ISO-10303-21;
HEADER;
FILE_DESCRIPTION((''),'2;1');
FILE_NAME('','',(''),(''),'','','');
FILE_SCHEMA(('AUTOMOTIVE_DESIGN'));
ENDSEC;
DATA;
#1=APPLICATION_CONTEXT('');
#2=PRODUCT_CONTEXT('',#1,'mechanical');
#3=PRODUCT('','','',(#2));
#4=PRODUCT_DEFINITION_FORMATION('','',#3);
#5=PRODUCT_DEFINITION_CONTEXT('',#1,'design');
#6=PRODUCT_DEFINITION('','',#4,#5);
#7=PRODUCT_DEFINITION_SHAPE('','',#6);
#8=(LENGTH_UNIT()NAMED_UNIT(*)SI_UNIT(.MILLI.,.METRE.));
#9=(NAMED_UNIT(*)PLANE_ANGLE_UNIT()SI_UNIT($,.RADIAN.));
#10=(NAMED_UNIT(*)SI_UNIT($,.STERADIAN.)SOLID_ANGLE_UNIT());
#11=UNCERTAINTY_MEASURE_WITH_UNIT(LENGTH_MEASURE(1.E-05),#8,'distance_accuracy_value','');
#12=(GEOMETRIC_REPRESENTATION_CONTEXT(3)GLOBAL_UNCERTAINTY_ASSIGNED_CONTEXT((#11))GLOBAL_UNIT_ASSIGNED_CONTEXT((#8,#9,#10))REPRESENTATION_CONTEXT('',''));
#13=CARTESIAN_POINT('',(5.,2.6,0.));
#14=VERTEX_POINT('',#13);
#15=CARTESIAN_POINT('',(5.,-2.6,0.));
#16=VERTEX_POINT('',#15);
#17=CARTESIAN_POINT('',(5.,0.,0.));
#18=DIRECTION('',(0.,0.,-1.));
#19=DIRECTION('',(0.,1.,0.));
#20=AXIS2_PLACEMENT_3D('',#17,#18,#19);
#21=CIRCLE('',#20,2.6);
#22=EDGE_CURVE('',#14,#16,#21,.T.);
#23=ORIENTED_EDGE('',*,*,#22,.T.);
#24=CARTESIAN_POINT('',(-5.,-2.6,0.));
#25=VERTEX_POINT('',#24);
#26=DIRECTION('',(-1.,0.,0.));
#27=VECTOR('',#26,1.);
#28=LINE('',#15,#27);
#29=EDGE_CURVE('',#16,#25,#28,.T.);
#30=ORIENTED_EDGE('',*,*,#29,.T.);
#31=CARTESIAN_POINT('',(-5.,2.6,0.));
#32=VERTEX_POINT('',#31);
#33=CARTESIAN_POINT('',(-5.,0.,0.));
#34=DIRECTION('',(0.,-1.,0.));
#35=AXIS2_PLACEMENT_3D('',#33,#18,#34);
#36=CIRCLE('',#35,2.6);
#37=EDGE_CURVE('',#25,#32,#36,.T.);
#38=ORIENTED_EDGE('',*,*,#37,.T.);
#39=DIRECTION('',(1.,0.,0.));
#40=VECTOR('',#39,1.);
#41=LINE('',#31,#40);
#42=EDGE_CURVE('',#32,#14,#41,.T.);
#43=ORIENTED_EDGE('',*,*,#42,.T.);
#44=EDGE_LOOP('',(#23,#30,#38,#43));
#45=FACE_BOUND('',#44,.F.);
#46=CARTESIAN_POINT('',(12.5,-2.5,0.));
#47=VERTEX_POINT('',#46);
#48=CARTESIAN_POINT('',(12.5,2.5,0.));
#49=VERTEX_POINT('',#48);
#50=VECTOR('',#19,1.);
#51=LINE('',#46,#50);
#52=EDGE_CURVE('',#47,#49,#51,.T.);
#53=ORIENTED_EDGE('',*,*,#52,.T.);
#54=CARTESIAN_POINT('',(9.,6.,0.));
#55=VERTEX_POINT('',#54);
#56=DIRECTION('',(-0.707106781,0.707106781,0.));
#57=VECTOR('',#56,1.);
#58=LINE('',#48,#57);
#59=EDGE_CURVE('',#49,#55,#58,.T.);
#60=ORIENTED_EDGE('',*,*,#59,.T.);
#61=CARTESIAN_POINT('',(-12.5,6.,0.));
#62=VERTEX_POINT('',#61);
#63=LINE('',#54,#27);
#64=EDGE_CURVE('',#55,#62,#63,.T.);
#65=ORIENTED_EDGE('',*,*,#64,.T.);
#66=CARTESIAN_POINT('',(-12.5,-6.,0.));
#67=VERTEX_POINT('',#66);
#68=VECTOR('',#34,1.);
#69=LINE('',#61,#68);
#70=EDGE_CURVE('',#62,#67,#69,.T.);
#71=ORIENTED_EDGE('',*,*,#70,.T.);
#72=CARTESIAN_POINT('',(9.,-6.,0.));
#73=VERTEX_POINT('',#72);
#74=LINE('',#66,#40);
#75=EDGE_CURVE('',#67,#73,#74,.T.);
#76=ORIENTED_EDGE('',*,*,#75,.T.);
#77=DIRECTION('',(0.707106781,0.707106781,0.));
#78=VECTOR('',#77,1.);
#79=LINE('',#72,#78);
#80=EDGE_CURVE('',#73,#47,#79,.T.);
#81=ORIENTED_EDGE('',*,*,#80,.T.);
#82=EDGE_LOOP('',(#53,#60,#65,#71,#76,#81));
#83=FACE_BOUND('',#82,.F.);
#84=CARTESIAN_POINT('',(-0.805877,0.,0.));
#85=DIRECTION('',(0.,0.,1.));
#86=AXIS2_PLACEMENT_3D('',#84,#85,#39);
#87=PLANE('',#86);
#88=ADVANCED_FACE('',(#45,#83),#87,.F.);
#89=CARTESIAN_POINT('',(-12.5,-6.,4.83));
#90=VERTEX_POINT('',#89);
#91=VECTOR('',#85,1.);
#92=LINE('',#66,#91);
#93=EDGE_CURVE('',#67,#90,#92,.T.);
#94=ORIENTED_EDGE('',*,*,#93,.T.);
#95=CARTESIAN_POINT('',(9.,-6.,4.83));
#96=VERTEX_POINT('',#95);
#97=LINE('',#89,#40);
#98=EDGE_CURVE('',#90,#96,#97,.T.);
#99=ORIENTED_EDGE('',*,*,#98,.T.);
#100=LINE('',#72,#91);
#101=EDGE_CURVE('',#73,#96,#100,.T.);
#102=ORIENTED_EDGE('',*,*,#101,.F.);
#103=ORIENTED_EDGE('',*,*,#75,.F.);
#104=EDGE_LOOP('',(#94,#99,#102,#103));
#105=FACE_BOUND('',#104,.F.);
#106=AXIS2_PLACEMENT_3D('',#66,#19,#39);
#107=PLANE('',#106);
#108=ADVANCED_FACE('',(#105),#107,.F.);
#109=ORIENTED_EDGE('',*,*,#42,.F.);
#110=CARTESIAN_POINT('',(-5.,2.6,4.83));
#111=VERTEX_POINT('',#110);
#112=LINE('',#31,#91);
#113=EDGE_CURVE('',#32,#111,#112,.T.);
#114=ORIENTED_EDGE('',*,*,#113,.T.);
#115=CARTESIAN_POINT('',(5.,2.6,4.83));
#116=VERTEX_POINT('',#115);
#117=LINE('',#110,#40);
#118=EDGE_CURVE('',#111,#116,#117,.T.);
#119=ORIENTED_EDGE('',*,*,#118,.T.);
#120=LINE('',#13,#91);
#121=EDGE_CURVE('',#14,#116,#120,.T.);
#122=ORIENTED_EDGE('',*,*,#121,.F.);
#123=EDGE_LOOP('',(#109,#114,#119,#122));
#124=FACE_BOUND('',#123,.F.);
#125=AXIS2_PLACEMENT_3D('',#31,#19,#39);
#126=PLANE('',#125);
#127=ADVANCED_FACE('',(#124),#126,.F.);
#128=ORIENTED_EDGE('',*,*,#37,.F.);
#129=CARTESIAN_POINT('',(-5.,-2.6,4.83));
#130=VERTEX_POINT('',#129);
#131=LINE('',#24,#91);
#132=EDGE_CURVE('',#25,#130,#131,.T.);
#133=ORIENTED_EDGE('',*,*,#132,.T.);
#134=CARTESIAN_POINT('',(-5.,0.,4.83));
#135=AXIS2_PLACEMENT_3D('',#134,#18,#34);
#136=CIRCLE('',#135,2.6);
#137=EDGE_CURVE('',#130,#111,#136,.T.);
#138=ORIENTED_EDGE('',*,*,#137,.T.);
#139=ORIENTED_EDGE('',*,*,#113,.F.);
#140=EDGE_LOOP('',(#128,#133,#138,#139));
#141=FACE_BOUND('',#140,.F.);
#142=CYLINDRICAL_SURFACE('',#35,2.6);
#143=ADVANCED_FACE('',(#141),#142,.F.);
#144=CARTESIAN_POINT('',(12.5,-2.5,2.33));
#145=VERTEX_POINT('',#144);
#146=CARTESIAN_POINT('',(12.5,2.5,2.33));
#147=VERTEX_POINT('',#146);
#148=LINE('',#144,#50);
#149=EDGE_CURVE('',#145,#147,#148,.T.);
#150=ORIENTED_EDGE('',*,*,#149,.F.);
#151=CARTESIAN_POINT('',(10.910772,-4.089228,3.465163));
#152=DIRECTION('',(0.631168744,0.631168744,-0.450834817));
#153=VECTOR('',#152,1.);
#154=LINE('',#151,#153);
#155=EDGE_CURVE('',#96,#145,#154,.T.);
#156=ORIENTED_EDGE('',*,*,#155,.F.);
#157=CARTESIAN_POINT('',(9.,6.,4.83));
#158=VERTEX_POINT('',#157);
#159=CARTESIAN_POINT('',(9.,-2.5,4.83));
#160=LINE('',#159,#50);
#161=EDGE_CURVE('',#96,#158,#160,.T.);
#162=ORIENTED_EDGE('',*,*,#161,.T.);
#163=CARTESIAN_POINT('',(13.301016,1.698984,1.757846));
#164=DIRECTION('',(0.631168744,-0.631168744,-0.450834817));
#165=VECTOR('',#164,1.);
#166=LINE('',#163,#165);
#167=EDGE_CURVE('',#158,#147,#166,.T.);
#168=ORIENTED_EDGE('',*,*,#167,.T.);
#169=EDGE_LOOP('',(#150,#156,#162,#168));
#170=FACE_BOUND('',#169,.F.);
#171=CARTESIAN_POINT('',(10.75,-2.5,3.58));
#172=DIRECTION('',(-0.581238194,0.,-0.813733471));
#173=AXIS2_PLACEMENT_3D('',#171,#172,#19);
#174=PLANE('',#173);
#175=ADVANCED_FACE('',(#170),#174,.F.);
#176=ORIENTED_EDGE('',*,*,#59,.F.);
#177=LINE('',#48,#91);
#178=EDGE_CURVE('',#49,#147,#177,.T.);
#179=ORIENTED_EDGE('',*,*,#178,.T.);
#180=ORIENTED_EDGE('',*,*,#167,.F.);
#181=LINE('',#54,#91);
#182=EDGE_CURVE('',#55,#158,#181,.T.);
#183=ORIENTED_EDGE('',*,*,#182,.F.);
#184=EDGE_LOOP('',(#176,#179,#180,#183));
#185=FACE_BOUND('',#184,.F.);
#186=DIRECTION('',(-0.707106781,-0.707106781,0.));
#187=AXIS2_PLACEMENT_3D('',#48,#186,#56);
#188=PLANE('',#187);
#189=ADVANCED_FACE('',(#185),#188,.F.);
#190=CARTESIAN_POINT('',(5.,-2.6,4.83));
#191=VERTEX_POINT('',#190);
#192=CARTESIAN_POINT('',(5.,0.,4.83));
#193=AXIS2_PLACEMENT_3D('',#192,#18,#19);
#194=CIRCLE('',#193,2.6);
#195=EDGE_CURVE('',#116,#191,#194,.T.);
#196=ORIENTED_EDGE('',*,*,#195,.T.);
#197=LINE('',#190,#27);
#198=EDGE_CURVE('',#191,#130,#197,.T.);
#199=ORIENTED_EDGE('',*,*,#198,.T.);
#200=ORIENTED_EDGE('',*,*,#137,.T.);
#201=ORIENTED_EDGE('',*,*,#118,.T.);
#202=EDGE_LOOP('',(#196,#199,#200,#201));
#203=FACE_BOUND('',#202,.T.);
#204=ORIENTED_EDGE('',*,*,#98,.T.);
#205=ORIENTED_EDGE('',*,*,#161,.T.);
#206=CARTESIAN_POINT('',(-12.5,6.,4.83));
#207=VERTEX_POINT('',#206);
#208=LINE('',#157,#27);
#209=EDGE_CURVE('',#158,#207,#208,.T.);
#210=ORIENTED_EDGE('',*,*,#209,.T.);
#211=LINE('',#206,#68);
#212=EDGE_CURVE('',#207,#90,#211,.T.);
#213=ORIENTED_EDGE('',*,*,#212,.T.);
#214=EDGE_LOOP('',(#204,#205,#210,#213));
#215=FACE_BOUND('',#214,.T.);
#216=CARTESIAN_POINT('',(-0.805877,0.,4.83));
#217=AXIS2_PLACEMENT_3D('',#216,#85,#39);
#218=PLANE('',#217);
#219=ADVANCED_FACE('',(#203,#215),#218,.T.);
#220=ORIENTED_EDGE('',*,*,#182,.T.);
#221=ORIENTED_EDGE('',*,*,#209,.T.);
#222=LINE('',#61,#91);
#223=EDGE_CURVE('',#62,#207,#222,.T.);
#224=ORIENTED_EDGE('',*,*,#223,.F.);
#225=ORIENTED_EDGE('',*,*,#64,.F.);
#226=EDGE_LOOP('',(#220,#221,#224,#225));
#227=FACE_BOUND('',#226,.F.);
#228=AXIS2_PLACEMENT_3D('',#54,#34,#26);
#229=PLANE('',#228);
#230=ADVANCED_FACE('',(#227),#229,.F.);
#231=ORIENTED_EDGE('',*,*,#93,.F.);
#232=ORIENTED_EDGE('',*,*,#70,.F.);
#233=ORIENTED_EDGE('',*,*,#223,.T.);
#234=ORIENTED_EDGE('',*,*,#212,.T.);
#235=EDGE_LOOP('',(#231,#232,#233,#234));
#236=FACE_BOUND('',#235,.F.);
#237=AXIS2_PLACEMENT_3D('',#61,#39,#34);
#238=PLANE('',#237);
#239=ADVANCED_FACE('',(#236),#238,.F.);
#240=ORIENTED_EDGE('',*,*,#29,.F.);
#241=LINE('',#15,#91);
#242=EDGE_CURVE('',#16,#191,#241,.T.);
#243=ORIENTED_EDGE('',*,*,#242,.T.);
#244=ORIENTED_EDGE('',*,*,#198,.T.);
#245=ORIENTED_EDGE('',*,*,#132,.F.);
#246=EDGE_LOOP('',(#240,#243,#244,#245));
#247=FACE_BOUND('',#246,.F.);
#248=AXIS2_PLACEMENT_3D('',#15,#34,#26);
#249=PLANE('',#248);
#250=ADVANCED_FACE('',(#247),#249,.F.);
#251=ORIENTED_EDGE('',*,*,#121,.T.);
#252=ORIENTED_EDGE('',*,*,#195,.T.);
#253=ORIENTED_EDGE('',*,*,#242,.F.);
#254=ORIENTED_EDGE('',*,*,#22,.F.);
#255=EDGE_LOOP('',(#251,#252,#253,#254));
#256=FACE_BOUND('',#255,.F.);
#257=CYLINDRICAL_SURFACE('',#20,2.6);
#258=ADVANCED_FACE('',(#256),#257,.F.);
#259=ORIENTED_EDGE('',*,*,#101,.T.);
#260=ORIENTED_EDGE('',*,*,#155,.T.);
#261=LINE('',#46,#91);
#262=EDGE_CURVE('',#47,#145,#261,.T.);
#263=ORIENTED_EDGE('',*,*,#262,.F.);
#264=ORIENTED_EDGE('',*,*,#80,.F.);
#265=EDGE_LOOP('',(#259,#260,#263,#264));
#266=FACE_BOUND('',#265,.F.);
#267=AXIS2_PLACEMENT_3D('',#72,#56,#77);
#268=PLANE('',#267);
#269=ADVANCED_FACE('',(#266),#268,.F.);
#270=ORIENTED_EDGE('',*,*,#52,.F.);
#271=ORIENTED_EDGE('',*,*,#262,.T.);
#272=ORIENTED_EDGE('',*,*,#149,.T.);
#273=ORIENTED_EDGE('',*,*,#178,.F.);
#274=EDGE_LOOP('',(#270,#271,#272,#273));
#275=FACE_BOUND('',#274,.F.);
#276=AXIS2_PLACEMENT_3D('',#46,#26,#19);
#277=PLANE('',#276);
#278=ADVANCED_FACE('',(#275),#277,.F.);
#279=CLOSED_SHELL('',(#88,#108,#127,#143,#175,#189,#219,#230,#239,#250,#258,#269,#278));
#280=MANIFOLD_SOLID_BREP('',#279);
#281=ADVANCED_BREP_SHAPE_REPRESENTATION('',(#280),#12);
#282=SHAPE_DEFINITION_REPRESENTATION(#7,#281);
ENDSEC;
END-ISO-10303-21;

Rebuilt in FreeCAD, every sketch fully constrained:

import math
import FreeCAD as App
import Part
import Sketcher
from FreeCAD import Vector
Q = App.Units.Quantity


def edges_at(feature, points):
    """Names of the edges that pass closest to the given points."""
    edges = feature.Shape.Edges
    near = lambda p: min(range(len(edges)), key=lambda i: edges[i].distToShape(Part.Vertex(*p))[0])
    return sorted({f"Edge{near(p) + 1}" for p in points})

doc = App.newDocument("Part")
body = doc.addObject("PartDesign::Body", "Body")

# Sketch on XY plane
sketch1 = body.newObject("Sketcher::SketchObject", "Sketch")
sketch1.AttachmentSupport = (doc.getObject("XY_Plane"), [""])
sketch1.MapMode = "FlatFace"
sketch1.addGeometry([
    Part.LineSegment(Vector(-12.5, -6, 0), Vector(9, -6, 0)),  # 0
    Part.LineSegment(Vector(9, -6, 0), Vector(12.5, -2.5, 0)),  # 1
    Part.LineSegment(Vector(12.5, -2.5, 0), Vector(12.5, 2.5, 0)),  # 2
    Part.LineSegment(Vector(12.5, 2.5, 0), Vector(9, 6, 0)),  # 3
    Part.LineSegment(Vector(9, 6, 0), Vector(-12.5, 6, 0)),  # 4
    Part.LineSegment(Vector(-12.5, 6, 0), Vector(-12.5, -6, 0)),  # 5
    Part.ArcOfCircle(Part.Circle(Vector(5, 0, 0), Vector(0, 0, 1), 2.6), math.radians(-90), math.radians(90)),  # 6
    Part.LineSegment(Vector(5, -2.6, 0), Vector(-5, -2.6, 0)),  # 7
    Part.ArcOfCircle(Part.Circle(Vector(-5, 0, 0), Vector(0, 0, 1), 2.6), math.radians(90), math.radians(270)),  # 8
    Part.LineSegment(Vector(-5, 2.6, 0), Vector(5, 2.6, 0)),  # 9
], False)
sketch1.addConstraint([
    Sketcher.Constraint("Coincident", 0, 2, 1, 1),
    Sketcher.Constraint("Coincident", 1, 2, 2, 1),
    Sketcher.Constraint("Coincident", 2, 2, 3, 1),
    Sketcher.Constraint("Coincident", 3, 2, 4, 1),
    Sketcher.Constraint("Coincident", 4, 2, 5, 1),
    Sketcher.Constraint("Coincident", 5, 2, 0, 1),
    Sketcher.Constraint("Tangent", 6, 1, 7, 1),
    Sketcher.Constraint("Tangent", 7, 2, 8, 2),
    Sketcher.Constraint("Tangent", 8, 1, 9, 1),
    Sketcher.Constraint("Tangent", 9, 2, 6, 2),
    Sketcher.Constraint("Horizontal", 0),
    Sketcher.Constraint("Vertical", 2),
    Sketcher.Constraint("Horizontal", 4),
    Sketcher.Constraint("Vertical", 5),
    Sketcher.Constraint("Horizontal", 7),
    Sketcher.Constraint("Horizontal", 9),
    Sketcher.Constraint("Symmetric", 6, 3, 8, 3, -1, 1),
    Sketcher.Constraint("Symmetric", 0, 2, 3, 2, -1),
    Sketcher.Constraint("Perpendicular", 1, 3),
    Sketcher.Constraint("Equal", 1, 3),
    Sketcher.Constraint("Radius", 6, Q("2.6 mm")),
    Sketcher.Constraint("DistanceX", 7, 2, 7, 1, Q("10 mm")),
    Sketcher.Constraint("DistanceY", 2, 1, 2, 2, Q("5 mm")),
    Sketcher.Constraint("DistanceY", 5, 2, 5, 1, Q("12 mm")),
    Sketcher.Constraint("DistanceX", 0, 1, 0, 2, Q("21.5 mm")),
    Sketcher.Constraint("DistanceX", -1, 1, 0, 2, Q("9 mm")),
])
pad1 = body.newObject("PartDesign::Pad", "Pad")
pad1.Profile = sketch1
pad1.Length = 4.83
doc.recompute()

chamfer = body.newObject("PartDesign::Chamfer", "Chamfer")
chamfer.Base = (pad1, edges_at(pad1, [(12.5, 0, 4.83)]))
chamfer.ChamferType = "Two distances"
chamfer.Size = 3.5
chamfer.Size2 = 2.5
chamfer.FlipDirection = True

doc.recompute()
